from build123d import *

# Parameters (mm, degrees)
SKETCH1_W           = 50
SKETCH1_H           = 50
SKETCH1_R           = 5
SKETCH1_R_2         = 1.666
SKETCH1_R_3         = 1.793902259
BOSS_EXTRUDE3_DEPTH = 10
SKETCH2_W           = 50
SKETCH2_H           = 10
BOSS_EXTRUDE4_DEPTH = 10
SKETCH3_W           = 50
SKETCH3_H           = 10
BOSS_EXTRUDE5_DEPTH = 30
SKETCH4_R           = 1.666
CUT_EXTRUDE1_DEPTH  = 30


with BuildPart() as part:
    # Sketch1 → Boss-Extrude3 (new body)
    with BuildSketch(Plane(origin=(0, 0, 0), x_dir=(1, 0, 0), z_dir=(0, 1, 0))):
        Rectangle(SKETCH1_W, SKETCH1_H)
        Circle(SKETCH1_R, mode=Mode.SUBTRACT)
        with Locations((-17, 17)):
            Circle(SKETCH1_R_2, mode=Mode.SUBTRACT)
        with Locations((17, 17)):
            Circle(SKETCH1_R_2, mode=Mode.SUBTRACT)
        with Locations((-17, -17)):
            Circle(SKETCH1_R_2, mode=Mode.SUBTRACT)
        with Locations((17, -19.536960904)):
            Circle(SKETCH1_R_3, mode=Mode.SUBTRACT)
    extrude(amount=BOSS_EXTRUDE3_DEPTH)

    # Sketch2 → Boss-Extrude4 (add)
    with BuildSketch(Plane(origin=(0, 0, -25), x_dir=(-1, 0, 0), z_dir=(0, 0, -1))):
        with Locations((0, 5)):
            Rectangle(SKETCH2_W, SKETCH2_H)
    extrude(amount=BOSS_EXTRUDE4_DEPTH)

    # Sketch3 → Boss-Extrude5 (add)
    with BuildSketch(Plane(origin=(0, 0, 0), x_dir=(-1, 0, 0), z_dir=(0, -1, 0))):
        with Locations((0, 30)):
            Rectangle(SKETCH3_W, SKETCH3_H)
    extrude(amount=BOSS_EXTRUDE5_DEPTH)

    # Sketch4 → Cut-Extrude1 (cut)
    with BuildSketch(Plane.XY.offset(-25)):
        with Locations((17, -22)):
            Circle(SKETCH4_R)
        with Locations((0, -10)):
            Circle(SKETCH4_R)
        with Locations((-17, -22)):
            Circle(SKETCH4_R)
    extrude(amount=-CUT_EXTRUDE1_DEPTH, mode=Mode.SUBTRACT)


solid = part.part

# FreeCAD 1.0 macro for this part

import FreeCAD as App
import Part
import Sketcher
from FreeCAD import Vector
Q = App.Units.Quantity


def add_polygon(sketch, points):
    """Adds a closed chain of lines whose ends are joined by coincident constraints."""
    first, n = sketch.GeometryCount, len(points)
    for a, b in zip(points, points[1:] + points[:1]):
        sketch.addGeometry(Part.LineSegment(App.Vector(*a, 0), App.Vector(*b, 0)), False)
    for i in range(n):
        sketch.addConstraint(Sketcher.Constraint("Coincident", first + i, 2, first + (i + 1) % n, 1))

doc = App.newDocument("Part")
body = doc.addObject("PartDesign::Body", "Body")

sketch1 = doc.addObject("Sketcher::SketchObject", "Sketch")
body.addObject(sketch1)
sketch1.AttachmentSupport = (doc.XZ_Plane, [""])
sketch1.MapMode = "FlatFace"
add_polygon(sketch1, [(-25, -25), (-25, 25), (25, 25), (25, -25)])
sketch1.addGeometry(Part.Circle(Vector(-17, 17, 0), Vector(0, 0, 1), 1.7), False)
sketch1.addGeometry(Part.Circle(Vector(17, 19.5, 0), Vector(0, 0, 1), 1.8), False)
sketch1.addGeometry(Part.Circle(Vector(0, 0, 0), Vector(0, 0, 1), 5), False)
sketch1.addGeometry(Part.Circle(Vector(-17, -17, 0), Vector(0, 0, 1), 1.7), False)
sketch1.addGeometry(Part.Circle(Vector(17, -17, 0), Vector(0, 0, 1), 1.7), False)
sketch1.addConstraint([
    Sketcher.Constraint("Vertical", 0),
    Sketcher.Constraint("Horizontal", 1),
    Sketcher.Constraint("Vertical", 2),
    Sketcher.Constraint("Horizontal", 3),
    Sketcher.Constraint("Coincident", 6, 3, -1, 1),
    Sketcher.Constraint("Equal", 4, 7),
    Sketcher.Constraint("Equal", 7, 8),
    Sketcher.Constraint("Symmetric", 4, 3, 8, 3, -1, 1),
    Sketcher.Constraint("Symmetric", 0, 2, 2, 2, -1, 1),
    Sketcher.Constraint("Symmetric", 7, 3, 8, 3, -2),
    Sketcher.Constraint("Vertical", 5, 3, 8, 3),
    Sketcher.Constraint("Equal", 3, 0),
    Sketcher.Constraint("Diameter", 6, Q("10 mm")),
    Sketcher.Constraint("DistanceX", 1, 1, 1, 2, Q("50 mm")),
    Sketcher.Constraint("Diameter", 4, Q("3.332 mm")),
    Sketcher.Constraint("DistanceX", 4, 3, -1, 1, Q("17 mm")),
    Sketcher.Constraint("DistanceY", -1, 1, 4, 3, Q("17 mm")),
    Sketcher.Constraint("Diameter", 5, Q("3.587805 mm")),
    Sketcher.Constraint("DistanceY", -1, 1, 5, 3, Q("19.536961 mm")),
])
pad1 = doc.addObject("PartDesign::Pad", "Pad")
body.addObject(pad1)
pad1.Profile = sketch1
pad1.Length = 10
pad1.Reversed = True

sketch2 = doc.addObject("Sketcher::SketchObject", "Sketch001")
body.addObject(sketch2)
sketch2.AttachmentSupport = (doc.XY_Plane, [""])
sketch2.MapMode = "FlatFace"
sketch2.AttachmentOffset = App.Placement(Vector(0, 0, -25), App.Rotation())
add_polygon(sketch2, [(25, 10), (25, 0), (-25, 0), (-25, 10)])
sketch2.addConstraint([
    Sketcher.Constraint("Vertical", 0),
    Sketcher.Constraint("Horizontal", 1),
    Sketcher.Constraint("Vertical", 2),
    Sketcher.Constraint("Horizontal", 3),
    Sketcher.Constraint("Symmetric", 0, 2, 1, 2, -1, 1),
    Sketcher.Constraint("DistanceX", 1, 2, 1, 1, Q("50 mm")),
    Sketcher.Constraint("DistanceY", 0, 2, 0, 1, Q("10 mm")),
])
pad2 = doc.addObject("PartDesign::Pad", "Pad001")
body.addObject(pad2)
pad2.Profile = sketch2
pad2.Length = 10
pad2.Reversed = True

sketch3 = doc.addObject("Sketcher::SketchObject", "Sketch002")
body.addObject(sketch3)
sketch3.AttachmentSupport = (doc.XZ_Plane, [""])
sketch3.MapMode = "FlatFace"
add_polygon(sketch3, [(25, -35), (25, -25), (-25, -25), (-25, -35)])
sketch3.addConstraint([
    Sketcher.Constraint("Vertical", 0),
    Sketcher.Constraint("Horizontal", 1),
    Sketcher.Constraint("Vertical", 2),
    Sketcher.Constraint("Horizontal", 3),
    Sketcher.Constraint("DistanceX", 1, 2, 1, 1, Q("50 mm")),
    Sketcher.Constraint("DistanceY", 0, 1, 0, 2, Q("10 mm")),
    Sketcher.Constraint("DistanceX", -1, 1, 0, 2, Q("25 mm")),
    Sketcher.Constraint("DistanceY", 0, 2, -1, 1, Q("25 mm")),
])
pad3 = doc.addObject("PartDesign::Pad", "Pad002")
body.addObject(pad3)
pad3.Profile = sketch3
pad3.Length = 30

sketch4 = doc.addObject("Sketcher::SketchObject", "Sketch003")
body.addObject(sketch4)
sketch4.AttachmentSupport = (doc.XY_Plane, [""])
sketch4.MapMode = "FlatFace"
sketch4.AttachmentOffset = App.Placement(Vector(0, 0, -25), App.Rotation())
sketch4.addGeometry([
    Part.Circle(Vector(17, -22, 0), Vector(0, 0, 1), 1.7),
    Part.Circle(Vector(0, -10, 0), Vector(0, 0, 1), 1.7),
    Part.Circle(Vector(-17, -22, 0), Vector(0, 0, 1), 1.7),
], False)
sketch4.addConstraint([
    Sketcher.Constraint("Equal", 0, 1),
    Sketcher.Constraint("Equal", 1, 2),
    Sketcher.Constraint("Symmetric", 0, 3, 2, 3, -2),
    Sketcher.Constraint("PointOnObject", 1, 3, -2),
    Sketcher.Constraint("Diameter", 0, Q("3.332 mm")),
    Sketcher.Constraint("DistanceX", -1, 1, 0, 3, Q("17 mm")),
    Sketcher.Constraint("DistanceY", 0, 3, -1, 1, Q("22 mm")),
    Sketcher.Constraint("DistanceY", 1, 3, -1, 1, Q("10 mm")),
])
pocket1 = doc.addObject("PartDesign::Pocket", "Pocket")
body.addObject(pocket1)
pocket1.Profile = sketch4
pocket1.Length = 30

doc.recompute()
